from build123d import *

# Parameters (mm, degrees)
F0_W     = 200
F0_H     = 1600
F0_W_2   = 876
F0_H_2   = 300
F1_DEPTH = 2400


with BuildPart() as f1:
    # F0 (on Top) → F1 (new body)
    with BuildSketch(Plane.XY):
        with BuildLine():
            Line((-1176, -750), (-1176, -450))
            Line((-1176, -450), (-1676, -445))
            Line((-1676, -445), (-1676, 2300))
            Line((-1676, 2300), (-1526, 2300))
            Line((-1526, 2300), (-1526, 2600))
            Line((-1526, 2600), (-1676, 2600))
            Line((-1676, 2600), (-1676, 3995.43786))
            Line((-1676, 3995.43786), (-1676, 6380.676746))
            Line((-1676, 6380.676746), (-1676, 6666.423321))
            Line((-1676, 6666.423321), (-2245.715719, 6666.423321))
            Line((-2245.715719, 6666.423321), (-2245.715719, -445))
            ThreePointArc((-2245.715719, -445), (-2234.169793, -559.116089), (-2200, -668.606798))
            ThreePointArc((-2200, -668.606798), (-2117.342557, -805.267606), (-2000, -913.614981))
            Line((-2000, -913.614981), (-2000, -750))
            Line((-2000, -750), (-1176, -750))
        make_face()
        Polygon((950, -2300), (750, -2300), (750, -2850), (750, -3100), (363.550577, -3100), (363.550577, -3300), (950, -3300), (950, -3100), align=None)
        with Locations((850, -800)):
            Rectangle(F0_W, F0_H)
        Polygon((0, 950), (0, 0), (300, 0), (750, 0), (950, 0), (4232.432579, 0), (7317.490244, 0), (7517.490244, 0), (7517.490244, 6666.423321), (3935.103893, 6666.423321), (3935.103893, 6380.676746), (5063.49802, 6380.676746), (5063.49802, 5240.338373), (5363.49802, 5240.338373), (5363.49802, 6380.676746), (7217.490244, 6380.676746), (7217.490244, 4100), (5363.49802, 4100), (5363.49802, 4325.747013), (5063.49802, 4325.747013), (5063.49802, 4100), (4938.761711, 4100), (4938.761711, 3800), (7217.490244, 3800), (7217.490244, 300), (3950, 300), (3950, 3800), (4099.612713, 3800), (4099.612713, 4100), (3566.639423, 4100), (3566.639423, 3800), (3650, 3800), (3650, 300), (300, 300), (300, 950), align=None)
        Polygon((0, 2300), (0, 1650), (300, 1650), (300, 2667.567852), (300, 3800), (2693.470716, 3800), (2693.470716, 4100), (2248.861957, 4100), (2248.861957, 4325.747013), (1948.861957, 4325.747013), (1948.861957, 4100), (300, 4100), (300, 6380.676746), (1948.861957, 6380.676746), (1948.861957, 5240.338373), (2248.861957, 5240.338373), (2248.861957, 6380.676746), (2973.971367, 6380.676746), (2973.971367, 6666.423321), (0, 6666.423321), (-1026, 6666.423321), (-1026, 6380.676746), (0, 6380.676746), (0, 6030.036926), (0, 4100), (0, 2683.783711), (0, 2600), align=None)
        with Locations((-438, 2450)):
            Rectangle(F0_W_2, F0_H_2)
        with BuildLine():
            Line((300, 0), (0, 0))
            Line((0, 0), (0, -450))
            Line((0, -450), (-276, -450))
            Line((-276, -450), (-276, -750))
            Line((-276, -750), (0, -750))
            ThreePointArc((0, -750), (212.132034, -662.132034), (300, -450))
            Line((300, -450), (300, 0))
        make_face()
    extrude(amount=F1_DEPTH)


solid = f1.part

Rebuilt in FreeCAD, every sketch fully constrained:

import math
import FreeCAD as App
import Part
import Sketcher
from FreeCAD import Vector
Q = App.Units.Quantity


def add_polygon(sketch, points):
    """Adds a closed chain of lines whose ends are joined by coincident constraints."""
    first, n = sketch.GeometryCount, len(points)
    for a, b in zip(points, points[1:] + points[:1]):
        sketch.addGeometry(Part.LineSegment(App.Vector(*a, 0), App.Vector(*b, 0)), False)
    for i in range(n):
        sketch.addConstraint(Sketcher.Constraint("Coincident", first + i, 2, first + (i + 1) % n, 1))

doc = App.newDocument("Part")
params = doc.addObject("Spreadsheet::Sheet", "Params")
for row, (alias, value) in enumerate([
    ("sketch1_radius", "300.000001 mm"),
    ("sketch1_width", "150 mm"),
    ("sketch1_width2", "824 mm"),
    ("sketch1_width3", "200 mm"),
    ("sketch1_width4", "3350 mm"),
    ("pad1_length", "2400 mm"),
], start=1):
    params.set(f"A{row}", alias)
    params.set(f"B{row}", "=" + value)
    params.setAlias(f"B{row}", alias)

body = doc.addObject("PartDesign::Body", "Body")
body.AllowCompound = True

# Sketch on XY plane
sketch1 = body.newObject("Sketcher::SketchObject", "Sketch")
sketch1.AttachmentSupport = (doc.getObject("XY_Plane"), [""])
sketch1.MapMode = "FlatFace"
sketch1.addGeometry(Part.LineSegment(Vector(-1176, -750, 0), Vector(-1176, -450, 0)), False)  # 0
sketch1.addGeometry(Part.LineSegment(Vector(-1176, -450, 0), Vector(-1676, -445, 0)), False)  # 1
sketch1.addGeometry(Part.LineSegment(Vector(-1676, -445, 0), Vector(-1676, 2300, 0)), False)  # 2
sketch1.addGeometry(Part.LineSegment(Vector(-1676, 2300, 0), Vector(-1526, 2300, 0)), False)  # 3
sketch1.addGeometry(Part.LineSegment(Vector(-1526, 2300, 0), Vector(-1526, 2600, 0)), False)  # 4
sketch1.addGeometry(Part.LineSegment(Vector(-1526, 2600, 0), Vector(-1676, 2600, 0)), False)  # 5
sketch1.addGeometry(Part.LineSegment(Vector(-1676, 2600, 0), Vector(-1676, 6666, 0)), False)  # 6
sketch1.addGeometry(Part.LineSegment(Vector(-1676, 6666, 0), Vector(-2246, 6666, 0)), False)  # 7
sketch1.addGeometry(Part.LineSegment(Vector(-2246, 6666, 0), Vector(-2246, -445, 0)), False)  # 8
sketch1.addGeometry(Part.ArcOfCircle(Part.Circle(Vector(-1676, -445, 0), Vector(0, 0, 1), 570), math.radians(-180), math.radians(-157)), False)  # 9
sketch1.addGeometry(Part.ArcOfCircle(Part.Circle(Vector(-1676, -445, 0), Vector(0, 0, 1), 570), math.radians(-157), math.radians(-125)), False)  # 10
sketch1.addGeometry(Part.LineSegment(Vector(-2000, -914, 0), Vector(-2000, -750, 0)), False)  # 11
sketch1.addGeometry(Part.LineSegment(Vector(-2000, -750, 0), Vector(-1176, -750, 0)), False)  # 12
add_polygon(sketch1, [(950, -2300), (750, -2300), (750, -3100), (364, -3100), (364, -3300), (950, -3300)])  # lines 13-18
sketch1.addGeometry(Part.LineSegment(Vector(750, 0, 0), Vector(750, -1600, 0)), False)  # 19
sketch1.addGeometry(Part.LineSegment(Vector(750, -1600, 0), Vector(950, -1600, 0)), False)  # 20
sketch1.addGeometry(Part.LineSegment(Vector(950, -1600, 0), Vector(950, 0, 0)), False)  # 21
sketch1.addGeometry(Part.LineSegment(Vector(950, 0, 0), Vector(7517, 0, 0)), False)  # 22
sketch1.addGeometry(Part.LineSegment(Vector(7517, 0, 0), Vector(7517, 6666, 0)), False)  # 23
sketch1.addGeometry(Part.LineSegment(Vector(7517, 6666, 0), Vector(3935, 6666, 0)), False)  # 24
sketch1.addGeometry(Part.LineSegment(Vector(3935, 6666, 0), Vector(3935, 6381, 0)), False)  # 25
sketch1.addGeometry(Part.LineSegment(Vector(3935, 6381, 0), Vector(5063, 6381, 0)), False)  # 26
sketch1.addGeometry(Part.LineSegment(Vector(5063, 6381, 0), Vector(5063, 5240, 0)), False)  # 27
sketch1.addGeometry(Part.LineSegment(Vector(5063, 5240, 0), Vector(5363, 5240, 0)), False)  # 28
sketch1.addGeometry(Part.LineSegment(Vector(5363, 5240, 0), Vector(5363, 6381, 0)), False)  # 29
sketch1.addGeometry(Part.LineSegment(Vector(5363, 6381, 0), Vector(7217, 6381, 0)), False)  # 30
sketch1.addGeometry(Part.LineSegment(Vector(7217, 6381, 0), Vector(7217, 4100, 0)), False)  # 31
sketch1.addGeometry(Part.LineSegment(Vector(7217, 4100, 0), Vector(5363, 4100, 0)), False)  # 32
sketch1.addGeometry(Part.LineSegment(Vector(5363, 4100, 0), Vector(5363, 4326, 0)), False)  # 33
sketch1.addGeometry(Part.LineSegment(Vector(5363, 4326, 0), Vector(5063, 4326, 0)), False)  # 34
sketch1.addGeometry(Part.LineSegment(Vector(5063, 4326, 0), Vector(5063, 4100, 0)), False)  # 35
sketch1.addGeometry(Part.LineSegment(Vector(5063, 4100, 0), Vector(4939, 4100, 0)), False)  # 36
sketch1.addGeometry(Part.LineSegment(Vector(4939, 4100, 0), Vector(4939, 3800, 0)), False)  # 37
sketch1.addGeometry(Part.LineSegment(Vector(4939, 3800, 0), Vector(7217, 3800, 0)), False)  # 38
sketch1.addGeometry(Part.LineSegment(Vector(7217, 3800, 0), Vector(7217, 300, 0)), False)  # 39
sketch1.addGeometry(Part.LineSegment(Vector(7217, 300, 0), Vector(3950, 300, 0)), False)  # 40
sketch1.addGeometry(Part.LineSegment(Vector(3950, 300, 0), Vector(3950, 3800, 0)), False)  # 41
sketch1.addGeometry(Part.LineSegment(Vector(3950, 3800, 0), Vector(4100, 3800, 0)), False)  # 42
sketch1.addGeometry(Part.LineSegment(Vector(4100, 3800, 0), Vector(4100, 4100, 0)), False)  # 43
sketch1.addGeometry(Part.LineSegment(Vector(4100, 4100, 0), Vector(3567, 4100, 0)), False)  # 44
sketch1.addGeometry(Part.LineSegment(Vector(3567, 4100, 0), Vector(3567, 3800, 0)), False)  # 45
sketch1.addGeometry(Part.LineSegment(Vector(3567, 3800, 0), Vector(3650, 3800, 0)), False)  # 46
sketch1.addGeometry(Part.LineSegment(Vector(3650, 3800, 0), Vector(3650, 300, 0)), False)  # 47
sketch1.addGeometry(Part.LineSegment(Vector(3650, 300, 0), Vector(300, 300, 0)), False)  # 48
sketch1.addGeometry(Part.LineSegment(Vector(300, 300, 0), Vector(300, 950, 0)), False)  # 49
sketch1.addGeometry(Part.LineSegment(Vector(300, 950, 0), Vector(0, 950, 0)), False)  # 50
sketch1.addGeometry(Part.LineSegment(Vector(0, 950, 0), Vector(0, -450, 0)), False)  # 51
sketch1.addGeometry(Part.LineSegment(Vector(0, -450, 0), Vector(-276, -450, 0)), False)  # 52
sketch1.addGeometry(Part.LineSegment(Vector(-276, -450, 0), Vector(-276, -750, 0)), False)  # 53
sketch1.addGeometry(Part.LineSegment(Vector(-276, -750, 0), Vector(0, -750, 0)), False)  # 54
sketch1.addGeometry(Part.ArcOfCircle(Part.Circle(Vector(0, -450, 0), Vector(0, 0, 1), 300), math.radians(-90), math.radians(0)), False)  # 55
sketch1.addGeometry(Part.LineSegment(Vector(300, -450, 0), Vector(300, 0, 0)), False)  # 56
sketch1.addGeometry(Part.LineSegment(Vector(300, 0, 0), Vector(750, 0, 0)), False)  # 57
add_polygon(sketch1, [(0, 1650), (300, 1650), (300, 3800), (2693, 3800), (2693, 4100), (2249, 4100), (2249, 4326), (1949, 4326), (1949, 4100), (300, 4100), (300, 6381), (1949, 6381), (1949, 5240), (2249, 5240), (2249, 6381), (2974, 6381), (2974, 6666), (-1026, 6666), (-1026, 6381), (0, 6381), (0, 2600), (-876, 2600), (-876, 2300), (0, 2300)])  # lines 58-81
sketch1.addConstraint([
    Sketcher.Constraint("Coincident", 0, 2, 1, 1),
    Sketcher.Constraint("Coincident", 1, 2, 2, 1),
    Sketcher.Constraint("Coincident", 2, 2, 3, 1),
    Sketcher.Constraint("Coincident", 3, 2, 4, 1),
    Sketcher.Constraint("Coincident", 4, 2, 5, 1),
    Sketcher.Constraint("Coincident", 5, 2, 6, 1),
    Sketcher.Constraint("Coincident", 6, 2, 7, 1),
    Sketcher.Constraint("Coincident", 7, 2, 8, 1),
    Sketcher.Constraint("Tangent", 8, 2, 9, 1),
    Sketcher.Constraint("Coincident", 9, 2, 10, 1),
    Sketcher.Constraint("Coincident", 10, 2, 11, 1),
    Sketcher.Constraint("Coincident", 11, 2, 12, 1),
    Sketcher.Constraint("Coincident", 12, 2, 0, 1),
    Sketcher.Constraint("Coincident", 19, 2, 20, 1),
    Sketcher.Constraint("Coincident", 20, 2, 21, 1),
    Sketcher.Constraint("Coincident", 21, 2, 22, 1),
    Sketcher.Constraint("Coincident", 22, 2, 23, 1),
    Sketcher.Constraint("Coincident", 23, 2, 24, 1),
    Sketcher.Constraint("Coincident", 24, 2, 25, 1),
    Sketcher.Constraint("Coincident", 25, 2, 26, 1),
    Sketcher.Constraint("Coincident", 26, 2, 27, 1),
    Sketcher.Constraint("Coincident", 27, 2, 28, 1),
    Sketcher.Constraint("Coincident", 28, 2, 29, 1),
    Sketcher.Constraint("Coincident", 29, 2, 30, 1),
    Sketcher.Constraint("Coincident", 30, 2, 31, 1),
    Sketcher.Constraint("Coincident", 31, 2, 32, 1),
    Sketcher.Constraint("Coincident", 32, 2, 33, 1),
    Sketcher.Constraint("Coincident", 33, 2, 34, 1),
    Sketcher.Constraint("Coincident", 34, 2, 35, 1),
    Sketcher.Constraint("Coincident", 35, 2, 36, 1),
    Sketcher.Constraint("Coincident", 36, 2, 37, 1),
    Sketcher.Constraint("Coincident", 37, 2, 38, 1),
    Sketcher.Constraint("Coincident", 38, 2, 39, 1),
    Sketcher.Constraint("Coincident", 39, 2, 40, 1),
    Sketcher.Constraint("Coincident", 40, 2, 41, 1),
    Sketcher.Constraint("Coincident", 41, 2, 42, 1),
    Sketcher.Constraint("Coincident", 42, 2, 43, 1),
    Sketcher.Constraint("Coincident", 43, 2, 44, 1),
    Sketcher.Constraint("Coincident", 44, 2, 45, 1),
    Sketcher.Constraint("Coincident", 45, 2, 46, 1),
    Sketcher.Constraint("Coincident", 46, 2, 47, 1),
    Sketcher.Constraint("Coincident", 47, 2, 48, 1),
    Sketcher.Constraint("Coincident", 48, 2, 49, 1),
    Sketcher.Constraint("Coincident", 49, 2, 50, 1),
    Sketcher.Constraint("Coincident", 50, 2, 51, 1),
    Sketcher.Constraint("Coincident", 51, 2, 52, 1),
    Sketcher.Constraint("Coincident", 52, 2, 53, 1),
    Sketcher.Constraint("Coincident", 53, 2, 54, 1),
    Sketcher.Constraint("Tangent", 54, 2, 55, 1),
    Sketcher.Constraint("Tangent", 55, 2, 56, 1),
    Sketcher.Constraint("Coincident", 56, 2, 57, 1),
    Sketcher.Constraint("Coincident", 57, 2, 19, 1),
    Sketcher.Constraint("Vertical", 0),
    Sketcher.Constraint("Vertical", 2),
    Sketcher.Constraint("Horizontal", 3),
    Sketcher.Constraint("Vertical", 4),
    Sketcher.Constraint("Horizontal", 5),
    Sketcher.Constraint("Vertical", 6),
    Sketcher.Constraint("Horizontal", 7),
    Sketcher.Constraint("Vertical", 8),
    Sketcher.Constraint("Vertical", 11),
    Sketcher.Constraint("Horizontal", 12),
    Sketcher.Constraint("Horizontal", 13),
    Sketcher.Constraint("Vertical", 14),
    Sketcher.Constraint("Horizontal", 15),
    Sketcher.Constraint("Vertical", 16),
    Sketcher.Constraint("Horizontal", 17),
    Sketcher.Constraint("Vertical", 18),
    Sketcher.Constraint("Vertical", 19),
    Sketcher.Constraint("Horizontal", 20),
    Sketcher.Constraint("Vertical", 21),
    Sketcher.Constraint("Horizontal", 22),
    Sketcher.Constraint("Vertical", 23),
    Sketcher.Constraint("Horizontal", 24),
    Sketcher.Constraint("Vertical", 25),
    Sketcher.Constraint("Horizontal", 26),
    Sketcher.Constraint("Vertical", 27),
    Sketcher.Constraint("Horizontal", 28),
    Sketcher.Constraint("Vertical", 29),
    Sketcher.Constraint("Horizontal", 30),
    Sketcher.Constraint("Vertical", 31),
    Sketcher.Constraint("Horizontal", 32),
    Sketcher.Constraint("Vertical", 33),
    Sketcher.Constraint("Horizontal", 34),
    Sketcher.Constraint("Vertical", 35),
    Sketcher.Constraint("Horizontal", 36),
    Sketcher.Constraint("Vertical", 37),
    Sketcher.Constraint("Horizontal", 38),
    Sketcher.Constraint("Vertical", 39),
    Sketcher.Constraint("Horizontal", 40),
    Sketcher.Constraint("Vertical", 41),
    Sketcher.Constraint("Horizontal", 42),
    Sketcher.Constraint("Vertical", 43),
    Sketcher.Constraint("Horizontal", 44),
    Sketcher.Constraint("Vertical", 45),
    Sketcher.Constraint("Horizontal", 46),
    Sketcher.Constraint("Vertical", 47),
    Sketcher.Constraint("Horizontal", 48),
    Sketcher.Constraint("Vertical", 49),
    Sketcher.Constraint("Horizontal", 50),
    Sketcher.Constraint("Vertical", 51),
    Sketcher.Constraint("Horizontal", 52),
    Sketcher.Constraint("Vertical", 53),
    Sketcher.Constraint("Horizontal", 54),
    Sketcher.Constraint("Vertical", 56),
    Sketcher.Constraint("Horizontal", 57),
    Sketcher.Constraint("Horizontal", 58),
    Sketcher.Constraint("Vertical", 59),
    Sketcher.Constraint("Horizontal", 60),
    Sketcher.Constraint("Vertical", 61),
    Sketcher.Constraint("Horizontal", 62),
    Sketcher.Constraint("Vertical", 63),
    Sketcher.Constraint("Horizontal", 64),
    Sketcher.Constraint("Vertical", 65),
    Sketcher.Constraint("Horizontal", 66),
    Sketcher.Constraint("Vertical", 67),
    Sketcher.Constraint("Horizontal", 68),
    Sketcher.Constraint("Vertical", 69),
    Sketcher.Constraint("Horizontal", 70),
    Sketcher.Constraint("Vertical", 71),
    Sketcher.Constraint("Horizontal", 72),
    Sketcher.Constraint("Vertical", 73),
    Sketcher.Constraint("Horizontal", 74),
    Sketcher.Constraint("Vertical", 75),
    Sketcher.Constraint("Horizontal", 76),
    Sketcher.Constraint("Vertical", 77),
    Sketcher.Constraint("Horizontal", 78),
    Sketcher.Constraint("Vertical", 79),
    Sketcher.Constraint("Horizontal", 80),
    Sketcher.Constraint("Vertical", 81),
    Sketcher.Constraint("Coincident", 1, 2, 10, 3),
    Sketcher.Constraint("Coincident", 51, 2, 55, 3),
    Sketcher.Constraint("PointOnObject", 55, 3, -2),
    Sketcher.Constraint("PointOnObject", 21, 2, -1),
    Sketcher.Constraint("PointOnObject", 56, 2, -1),
    Sketcher.Constraint("PointOnObject", 76, 2, -2),
    Sketcher.Constraint("PointOnObject", 80, 2, -2),
    Sketcher.Constraint("Horizontal", 55, 3, 0, 2),
    Sketcher.Constraint("Horizontal", 1, 2, 8, 2),
    Sketcher.Constraint("Horizontal", 7, 2, 23, 2),
    Sketcher.Constraint("Horizontal", 26, 2, 29, 2),
    Sketcher.Constraint("Horizontal", 32, 2, 35, 2),
    Sketcher.Constraint("Horizontal", 38, 2, 41, 2),
    Sketcher.Constraint("Horizontal", 36, 2, 43, 2),
    Sketcher.Constraint("Horizontal", 42, 2, 45, 2),
    Sketcher.Constraint("Horizontal", 40, 2, 47, 2),
    Sketcher.Constraint("Horizontal", 12, 2, 53, 2),
    Sketcher.Constraint("Horizontal", 46, 2, 59, 2),
    Sketcher.Constraint("Horizontal", 44, 2, 61, 2),
    Sketcher.Constraint("Horizontal", 34, 2, 63, 2),
    Sketcher.Constraint("Horizontal", 62, 2, 65, 2),
    Sketcher.Constraint("Horizontal", 30, 2, 67, 2),
    Sketcher.Constraint("Horizontal", 28, 2, 69, 2),
    Sketcher.Constraint("Horizontal", 68, 2, 71, 2),
    Sketcher.Constraint("Horizontal", 24, 2, 73, 2),
    Sketcher.Constraint("Horizontal", 72, 2, 75, 2),
    Sketcher.Constraint("Horizontal", 5, 2, 77, 2),
    Sketcher.Constraint("Horizontal", 3, 2, 79, 2),
    Sketcher.Constraint("Vertical", 2, 2, 5, 2),
    Sketcher.Constraint("Vertical", 14, 2, 19, 2),
    Sketcher.Constraint("Vertical", 18, 2, 20, 2),
    Sketcher.Constraint("Vertical", 29, 2, 32, 2),
    Sketcher.Constraint("Vertical", 27, 2, 34, 2),
    Sketcher.Constraint("Vertical", 31, 2, 38, 2),
    Sketcher.Constraint("Vertical", 49, 2, 55, 2),
    Sketcher.Constraint("Vertical", 56, 2, 58, 2),
    Sketcher.Constraint("Vertical", 59, 2, 66, 2),
    Sketcher.Constraint("Vertical", 65, 2, 68, 2),
    Sketcher.Constraint("Vertical", 63, 2, 70, 2),
    Sketcher.Constraint("Equal", 34, 50),
    Sketcher.Constraint("Equal", 58, 64),
    Sketcher.Constraint("Equal", 0, 4),
    Sketcher.Constraint("Equal", 20, 16),
    Sketcher.Constraint("Equal", 4, 37),
    Sketcher.Constraint("Equal", 57, 56),
    Sketcher.Constraint("Equal", 49, 81),
    Sketcher.Constraint("Radius", 55, Q("300.000001 mm")),
    Sketcher.Constraint("DistanceX", 3, 1, 3, 2, Q("150 mm")),
    Sketcher.Constraint("DistanceX", 12, 1, 12, 2, Q("824 mm")),
    Sketcher.Constraint("DistanceX", 13, 2, 13, 1, Q("200 mm")),
    Sketcher.Constraint("DistanceX", 48, 2, 48, 1, Q("3350 mm")),
    Sketcher.Constraint("DistanceX", 52, 2, 52, 1, Q("276 mm")),
    Sketcher.Constraint("DistanceX", 57, 1, 57, 2, Q("450 mm")),
    Sketcher.Constraint("DistanceX", 76, 1, 76, 2, Q("1026 mm")),
    Sketcher.Constraint("DistanceX", 78, 2, 78, 1, Q("876 mm")),
    Sketcher.Constraint("DistanceY", 2, 1, 2, 2, Q("2745 mm")),
    Sketcher.Constraint("DistanceY", 14, 2, 14, 1, Q("800 mm")),
    Sketcher.Constraint("DistanceY", 19, 2, 19, 1, Q("1600 mm")),
    Sketcher.Constraint("DistanceY", 39, 2, 39, 1, Q("3500 mm")),
    Sketcher.Constraint("DistanceY", 49, 1, 49, 2, Q("650 mm")),
    Sketcher.Constraint("DistanceY", 51, 2, 51, 1, Q("1400 mm")),
    Sketcher.Constraint("DistanceY", 59, 1, 59, 2, Q("2150 mm")),
    Sketcher.Constraint("DistanceX", 0, 2, -1, 1, Q("1176 mm")),
    Sketcher.Constraint("DistanceX", 1, 2, -1, 1, Q("1676 mm")),
    Sketcher.Constraint("DistanceX", 9, 2, -1, 1, Q("2200 mm")),
    Sketcher.Constraint("DistanceY", 13, 2, -1, 1, Q("2300 mm")),
    Sketcher.Constraint("DistanceX", -1, 1, 40, 2, Q("3950 mm")),
    Sketcher.Constraint("Radius", 9, Q("569.715749 mm")),
    Sketcher.Constraint("Radius", 10, Q("569.715713 mm")),
    Sketcher.Constraint("DistanceX", 24, 2, 24, 1, Q("3582.386351 mm")),
    Sketcher.Constraint("DistanceX", 36, 2, 36, 1, Q("124.736309 mm")),
    Sketcher.Constraint("DistanceX", 44, 2, 44, 1, Q("532.97329 mm")),
    Sketcher.Constraint("DistanceX", 62, 2, 62, 1, Q("444.608759 mm")),
    Sketcher.Constraint("DistanceX", 72, 1, 72, 2, Q("725.10941 mm")),
    Sketcher.Constraint("DistanceY", 6, 1, 6, 2, Q("4066.423321 mm")),
    Sketcher.Constraint("DistanceX", 15, 2, 15, 1, Q("386.449423 mm")),
    Sketcher.Constraint("DistanceX", 22, 1, 22, 2, Q("6567.490244 mm")),
    Sketcher.Constraint("DistanceX", 26, 1, 26, 2, Q("1128.394127 mm")),
    Sketcher.Constraint("DistanceX", 30, 1, 30, 2, Q("1853.992224 mm")),
    Sketcher.Constraint("DistanceX", 42, 1, 42, 2, Q("149.612713 mm")),
    Sketcher.Constraint("DistanceX", 60, 1, 60, 2, Q("2393.470716 mm")),
    Sketcher.Constraint("DistanceY", 25, 2, 25, 1, Q("285.746575 mm")),
    Sketcher.Constraint("DistanceY", 27, 2, 27, 1, Q("1140.338373 mm")),
    Sketcher.Constraint("DistanceY", 33, 1, 33, 2, Q("225.747013 mm")),
])
sketch1.setExpression("Constraints[206]", "Params.sketch1_radius")
sketch1.setExpression("Constraints[207]", "Params.sketch1_width")
sketch1.setExpression("Constraints[208]", "Params.sketch1_width2")
sketch1.setExpression("Constraints[209]", "Params.sketch1_width3")
sketch1.setExpression("Constraints[210]", "Params.sketch1_width4")
pad1 = body.newObject("PartDesign::Pad", "Pad")
pad1.Profile = sketch1
pad1.setExpression("Length", "Params.pad1_length")

doc.recompute()
